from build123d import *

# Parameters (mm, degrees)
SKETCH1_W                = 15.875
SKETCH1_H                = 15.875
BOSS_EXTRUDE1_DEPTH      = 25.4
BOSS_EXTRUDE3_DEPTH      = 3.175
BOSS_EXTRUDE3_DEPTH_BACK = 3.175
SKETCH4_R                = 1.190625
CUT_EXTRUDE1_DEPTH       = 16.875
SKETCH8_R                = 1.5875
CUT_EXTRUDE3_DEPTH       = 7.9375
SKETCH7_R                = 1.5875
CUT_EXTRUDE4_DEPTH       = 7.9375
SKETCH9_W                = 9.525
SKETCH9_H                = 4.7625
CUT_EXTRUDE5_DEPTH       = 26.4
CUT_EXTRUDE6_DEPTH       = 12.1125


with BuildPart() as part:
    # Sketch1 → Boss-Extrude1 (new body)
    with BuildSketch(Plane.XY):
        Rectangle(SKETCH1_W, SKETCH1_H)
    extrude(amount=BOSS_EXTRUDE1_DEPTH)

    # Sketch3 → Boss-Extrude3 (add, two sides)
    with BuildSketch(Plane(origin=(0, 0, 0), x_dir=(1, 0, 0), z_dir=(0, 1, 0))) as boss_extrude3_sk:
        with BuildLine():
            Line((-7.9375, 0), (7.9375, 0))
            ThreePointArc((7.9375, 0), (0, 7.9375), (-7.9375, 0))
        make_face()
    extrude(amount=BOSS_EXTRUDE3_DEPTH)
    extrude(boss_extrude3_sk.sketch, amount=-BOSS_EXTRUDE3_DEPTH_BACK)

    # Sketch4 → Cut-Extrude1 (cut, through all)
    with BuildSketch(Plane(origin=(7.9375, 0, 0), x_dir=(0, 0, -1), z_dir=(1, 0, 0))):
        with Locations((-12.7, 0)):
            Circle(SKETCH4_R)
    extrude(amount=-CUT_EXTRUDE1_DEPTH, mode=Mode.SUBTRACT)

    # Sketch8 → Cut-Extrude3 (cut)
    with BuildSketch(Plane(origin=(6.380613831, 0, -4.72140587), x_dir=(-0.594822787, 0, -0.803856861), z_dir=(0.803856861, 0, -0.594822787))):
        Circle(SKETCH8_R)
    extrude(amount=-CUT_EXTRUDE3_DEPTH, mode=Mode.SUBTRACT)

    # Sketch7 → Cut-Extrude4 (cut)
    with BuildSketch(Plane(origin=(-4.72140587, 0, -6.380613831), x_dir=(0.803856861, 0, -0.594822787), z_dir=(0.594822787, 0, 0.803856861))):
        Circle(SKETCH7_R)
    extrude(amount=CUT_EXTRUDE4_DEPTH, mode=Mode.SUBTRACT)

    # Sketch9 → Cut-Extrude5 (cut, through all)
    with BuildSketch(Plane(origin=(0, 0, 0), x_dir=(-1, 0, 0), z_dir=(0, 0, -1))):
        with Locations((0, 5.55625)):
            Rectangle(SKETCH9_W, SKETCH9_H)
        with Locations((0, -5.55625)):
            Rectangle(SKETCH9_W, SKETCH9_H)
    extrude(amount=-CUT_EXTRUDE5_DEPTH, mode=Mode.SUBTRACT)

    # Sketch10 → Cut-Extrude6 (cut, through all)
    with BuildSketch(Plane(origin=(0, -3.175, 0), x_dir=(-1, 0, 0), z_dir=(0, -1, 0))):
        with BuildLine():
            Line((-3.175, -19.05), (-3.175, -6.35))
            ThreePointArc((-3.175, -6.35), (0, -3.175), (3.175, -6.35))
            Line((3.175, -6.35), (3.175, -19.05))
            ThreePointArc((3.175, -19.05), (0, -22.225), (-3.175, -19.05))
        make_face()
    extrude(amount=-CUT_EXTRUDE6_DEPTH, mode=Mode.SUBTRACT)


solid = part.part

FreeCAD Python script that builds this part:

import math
import FreeCAD as App
import Part
import Sketcher

V = App.Vector
Q = App.Units.Quantity

doc = App.newDocument("Part")
body = doc.addObject("PartDesign::Body", "Body")

sketch1 = doc.addObject("Sketcher::SketchObject", "Sketch")
body.addObject(sketch1)
sketch1.AttachmentSupport = (doc.XY_Plane, [""])
sketch1.MapMode = "FlatFace"
sketch1.addGeometry([
    Part.LineSegment(V(-8, 8, 0), V(-8, -8, 0)),
    Part.LineSegment(V(-8, -8, 0), V(8, -8, 0)),
    Part.LineSegment(V(8, -8, 0), V(8, 8, 0)),
    Part.LineSegment(V(8, 8, 0), V(-8, 8, 0)),
], False)
sketch1.addConstraint([
    Sketcher.Constraint("Coincident", 0, 2, 1, 1),
    Sketcher.Constraint("Coincident", 1, 2, 2, 1),
    Sketcher.Constraint("Coincident", 2, 2, 3, 1),
    Sketcher.Constraint("Coincident", 3, 2, 0, 1),
    Sketcher.Constraint("Vertical", 0),
    Sketcher.Constraint("Horizontal", 1),
    Sketcher.Constraint("Vertical", 2),
    Sketcher.Constraint("Horizontal", 3),
    Sketcher.Constraint("Symmetric", 0, 2, 2, 2, -1, 1),
    Sketcher.Constraint("Equal", 3, 0),
    Sketcher.Constraint("DistanceX", 1, 1, 1, 2, Q("0.625 in")),
])
pad1 = doc.addObject("PartDesign::Pad", "Pad")
body.addObject(pad1)
pad1.Profile = sketch1
pad1.Length = Q("1 in")

sketch2 = doc.addObject("Sketcher::SketchObject", "Sketch001")
body.addObject(sketch2)
sketch2.AttachmentSupport = (doc.XZ_Plane, [""])
sketch2.MapMode = "FlatFace"
sketch2.addGeometry([
    Part.LineSegment(V(-8, 0, 0), V(8, 0, 0)),
    Part.ArcOfCircle(Part.Circle(V(0, 0, 0), V(0, 0, 1), 8), math.radians(180), math.radians(360)),
], False)
sketch2.addConstraint([
    Sketcher.Constraint("Coincident", 0, 1, 1, 1),
    Sketcher.Constraint("Coincident", 1, 2, 0, 2),
    Sketcher.Constraint("Horizontal", 0),
    Sketcher.Constraint("Coincident", 1, 3, -1, 1),
    Sketcher.Constraint("PointOnObject", 0, 1, -1),
    Sketcher.Constraint("Radius", 1, Q("0.3125 in")),
])
pad2 = doc.addObject("PartDesign::Pad", "Pad001")
body.addObject(pad2)
pad2.Profile = sketch2
pad2.Type = "TwoLengths"
pad2.Length = Q("0.125 in")
pad2.Length2 = Q("0.125 in")
pad2.Reversed = True

sketch3 = doc.addObject("Sketcher::SketchObject", "Sketch002")
body.addObject(sketch3)
sketch3.AttachmentSupport = (doc.YZ_Plane, [""])
sketch3.MapMode = "FlatFace"
sketch3.AttachmentOffset = App.Placement(V(0, 0, 0.3125 * 25.4), App.Rotation())
sketch3.addGeometry(Part.Circle(V(0, 12.7, 0), V(0, 0, 1), 1.2), False)
sketch3.addConstraint([
    Sketcher.Constraint("PointOnObject", 0, 3, -2),
    Sketcher.Constraint("Diameter", 0, Q("0.09375 in")),
    Sketcher.Constraint("DistanceY", -1, 1, 0, 3, Q("0.5 in")),
])
pocket1 = doc.addObject("PartDesign::Pocket", "Pocket")
body.addObject(pocket1)
pocket1.Profile = sketch3
pocket1.Type = "ThroughAll"

sketch4 = doc.addObject("Sketcher::SketchObject", "Sketch003")
body.addObject(sketch4)
sketch4.Placement = App.Placement(V(6.380614, 0, -4.721406), App.Rotation(V(-0.594822787, 0, -0.803856861), V(0, 1.000000001, 0), V(0.803856861, 0, -0.594822787), "ZXY"))
sketch4.addGeometry(Part.Circle(V(0, 0, 0), V(0, 0, 1), 1.6), False)
sketch4.addConstraint([
    Sketcher.Constraint("Coincident", 0, 3, -1, 1),
    Sketcher.Constraint("Diameter", 0, Q("0.125 in")),
])
pocket2 = doc.addObject("PartDesign::Pocket", "Pocket001")
body.addObject(pocket2)
pocket2.Profile = sketch4
pocket2.Length = Q("0.3125 in")

sketch5 = doc.addObject("Sketcher::SketchObject", "Sketch004")
body.addObject(sketch5)
sketch5.Placement = App.Placement(V(-4.721406, 0, -6.380614), App.Rotation(V(0.803856861, 0, -0.594822787), V(0, 1.000000001, 0), V(0.594822787, 0, 0.803856861), "ZXY"))
sketch5.addGeometry(Part.Circle(V(0, 0, 0), V(0, 0, 1), 1.6), False)
sketch5.addConstraint([
    Sketcher.Constraint("Coincident", 0, 3, -1, 1),
    Sketcher.Constraint("Diameter", 0, Q("0.125 in")),
])
pocket3 = doc.addObject("PartDesign::Pocket", "Pocket002")
body.addObject(pocket3)
pocket3.Profile = sketch5
pocket3.Length = Q("0.3125 in")
pocket3.Reversed = True

sketch6 = doc.addObject("Sketcher::SketchObject", "Sketch005")
body.addObject(sketch6)
sketch6.AttachmentSupport = (doc.XY_Plane, [""])
sketch6.MapMode = "FlatFace"
sketch6.addGeometry([
    Part.LineSegment(V(4.8, 7.9, 0), V(4.8, 3.2, 0)),
    Part.LineSegment(V(4.8, 3.2, 0), V(-4.8, 3.2, 0)),
    Part.LineSegment(V(-4.8, 3.2, 0), V(-4.8, 7.9, 0)),
    Part.LineSegment(V(-4.8, 7.9, 0), V(4.8, 7.9, 0)),
    Part.LineSegment(V(4.8, -3.2, 0), V(4.8, -7.9, 0)),
    Part.LineSegment(V(4.8, -7.9, 0), V(-4.8, -7.9, 0)),
    Part.LineSegment(V(-4.8, -7.9, 0), V(-4.8, -3.2, 0)),
    Part.LineSegment(V(-4.8, -3.2, 0), V(4.8, -3.2, 0)),
], False)
sketch6.addConstraint([
    Sketcher.Constraint("Coincident", 0, 2, 1, 1),
    Sketcher.Constraint("Coincident", 1, 2, 2, 1),
    Sketcher.Constraint("Coincident", 2, 2, 3, 1),
    Sketcher.Constraint("Coincident", 3, 2, 0, 1),
    Sketcher.Constraint("Coincident", 4, 2, 5, 1),
    Sketcher.Constraint("Coincident", 5, 2, 6, 1),
    Sketcher.Constraint("Coincident", 6, 2, 7, 1),
    Sketcher.Constraint("Coincident", 7, 2, 4, 1),
    Sketcher.Constraint("Vertical", 0),
    Sketcher.Constraint("Horizontal", 1),
    Sketcher.Constraint("Vertical", 2),
    Sketcher.Constraint("Horizontal", 3),
    Sketcher.Constraint("Vertical", 4),
    Sketcher.Constraint("Horizontal", 5),
    Sketcher.Constraint("Vertical", 6),
    Sketcher.Constraint("Horizontal", 7),
    Sketcher.Constraint("Symmetric", 2, 2, 4, 2, -1, 1),
    Sketcher.Constraint("Symmetric", 0, 2, 6, 2, -1, 1),
    Sketcher.Constraint("Vertical", 3, 2, 4, 2),
    Sketcher.Constraint("DistanceX", 1, 2, 1, 1, Q("0.375 in")),
    Sketcher.Constraint("DistanceY", 0, 2, 0, 1, Q("0.1875 in")),
    Sketcher.Constraint("DistanceY", 6, 2, 1, 2, Q("0.25 in")),
])
pocket4 = doc.addObject("PartDesign::Pocket", "Pocket003")
body.addObject(pocket4)
pocket4.Profile = sketch6
pocket4.Type = "ThroughAll"
pocket4.Reversed = True

sketch7 = doc.addObject("Sketcher::SketchObject", "Sketch006")
body.addObject(sketch7)
sketch7.AttachmentSupport = (doc.XZ_Plane, [""])
sketch7.MapMode = "FlatFace"
sketch7.AttachmentOffset = App.Placement(V(0, 0, 0.125 * 25.4), App.Rotation())
sketch7.addGeometry([
    Part.LineSegment(V(3.2, 6.3, 0), V(3.2, 19.1, 0)),
    Part.ArcOfCircle(Part.Circle(V(0, 19.1, 0), V(0, 0, 1), 3.2), math.radians(0), math.radians(180)),
    Part.LineSegment(V(-3.2, 19.1, 0), V(-3.2, 6.3, 0)),
    Part.ArcOfCircle(Part.Circle(V(0, 6.3, 0), V(0, 0, 1), 3.2), math.radians(180), math.radians(360)),
], False)
sketch7.addConstraint([
    Sketcher.Constraint("Tangent", 0, 2, 1, 1),
    Sketcher.Constraint("Tangent", 1, 2, 2, 1),
    Sketcher.Constraint("Tangent", 2, 2, 3, 1),
    Sketcher.Constraint("Tangent", 3, 2, 0, 1),
    Sketcher.Constraint("Vertical", 0),
    Sketcher.Constraint("Vertical", 2),
    Sketcher.Constraint("PointOnObject", 1, 3, -2),
    Sketcher.Constraint("DistanceY", 0, 1, 0, 2, Q("0.5 in")),
    Sketcher.Constraint("Radius", 1, Q("0.125 in")),
    Sketcher.Constraint("DistanceY", -1, 1, 1, 3, Q("0.75 in")),
])
pocket5 = doc.addObject("PartDesign::Pocket", "Pocket004")
body.addObject(pocket5)
pocket5.Profile = sketch7
pocket5.Type = "ThroughAll"

doc.recompute()
